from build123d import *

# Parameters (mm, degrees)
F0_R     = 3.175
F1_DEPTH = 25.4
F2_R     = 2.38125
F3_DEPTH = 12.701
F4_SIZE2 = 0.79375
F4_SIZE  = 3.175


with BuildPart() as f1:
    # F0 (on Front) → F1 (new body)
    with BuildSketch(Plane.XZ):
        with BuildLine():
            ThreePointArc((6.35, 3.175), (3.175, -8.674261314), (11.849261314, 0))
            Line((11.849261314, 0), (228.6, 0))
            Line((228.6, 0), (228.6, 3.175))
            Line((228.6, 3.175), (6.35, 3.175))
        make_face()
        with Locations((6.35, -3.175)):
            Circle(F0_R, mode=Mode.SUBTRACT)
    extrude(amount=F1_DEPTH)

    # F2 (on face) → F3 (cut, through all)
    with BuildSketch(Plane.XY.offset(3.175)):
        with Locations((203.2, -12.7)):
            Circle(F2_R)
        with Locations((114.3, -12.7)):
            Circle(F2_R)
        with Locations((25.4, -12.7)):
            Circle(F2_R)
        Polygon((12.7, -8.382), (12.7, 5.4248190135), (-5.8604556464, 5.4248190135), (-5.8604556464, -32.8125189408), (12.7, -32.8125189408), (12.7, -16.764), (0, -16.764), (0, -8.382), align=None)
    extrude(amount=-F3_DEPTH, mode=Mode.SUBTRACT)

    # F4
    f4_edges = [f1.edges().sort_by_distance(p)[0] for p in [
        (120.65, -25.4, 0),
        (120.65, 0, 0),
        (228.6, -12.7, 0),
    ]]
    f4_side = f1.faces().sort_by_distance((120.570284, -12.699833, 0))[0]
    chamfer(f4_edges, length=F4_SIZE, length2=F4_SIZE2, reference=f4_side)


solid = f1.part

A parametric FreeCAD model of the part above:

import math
import FreeCAD as App
import Part
import Sketcher
from FreeCAD import Vector
Q = App.Units.Quantity


def edges_at(feature, points):
    """Names of the edges that pass closest to the given points."""
    edges = feature.Shape.Edges
    near = lambda p: min(range(len(edges)), key=lambda i: edges[i].distToShape(Part.Vertex(*p))[0])
    return sorted({f"Edge{near(p) + 1}" for p in points})


def add_polygon(sketch, points):
    """Adds a closed chain of lines whose ends are joined by coincident constraints."""
    first, n = sketch.GeometryCount, len(points)
    for a, b in zip(points, points[1:] + points[:1]):
        sketch.addGeometry(Part.LineSegment(App.Vector(*a, 0), App.Vector(*b, 0)), False)
    for i in range(n):
        sketch.addConstraint(Sketcher.Constraint("Coincident", first + i, 2, first + (i + 1) % n, 1))

doc = App.newDocument("Part")
params = doc.addObject("Spreadsheet::Sheet", "Params")
for row, (alias, value) in enumerate([
    ("sketch1_diameter", "0.25 in"),
    ("sketch1_radius", "0.25 in"),
    ("sketch1_width", "8.75 in"),
    ("sketch1_height", "0.125 in"),
    ("pad1_length", "1 in"),
    ("sketch2_diameter", "0.1875 in"),
    ("sketch2_width", "0.5 in"),
    ("sketch2_height", "0.33 in"),
    ("chamfer_size", "0.125 in"),
    ("chamfer_size2", "0.03125 in"),
], start=1):
    params.set(f"A{row}", alias)
    params.set(f"B{row}", "=" + value)
    params.setAlias(f"B{row}", alias)

body = doc.addObject("PartDesign::Body", "Body")

sketch1 = body.newObject("Sketcher::SketchObject", "Sketch")
sketch1.AttachmentSupport = (doc.getObject("XZ_Plane"), [""])
sketch1.MapMode = "FlatFace"
sketch1.addGeometry([
    Part.ArcOfCircle(Part.Circle(Vector(6.3, -3.2, 0), Vector(0, 0, 1), 6.3), math.radians(90), math.radians(390)),
    Part.LineSegment(Vector(11.8, 0, 0), Vector(228.6, 0, 0)),
    Part.LineSegment(Vector(228.6, 0, 0), Vector(228.6, 3.2, 0)),
    Part.LineSegment(Vector(228.6, 3.2, 0), Vector(6.3, 3.2, 0)),
    Part.Circle(Vector(6.3, -3.2, 0), Vector(0, 0, 1), 3.2),
], False)
sketch1.addConstraint([
    Sketcher.Constraint("Coincident", 0, 2, 1, 1),
    Sketcher.Constraint("Coincident", 1, 2, 2, 1),
    Sketcher.Constraint("Coincident", 2, 2, 3, 1),
    Sketcher.Constraint("Tangent", 3, 2, 0, 1),
    Sketcher.Constraint("Horizontal", 1),
    Sketcher.Constraint("Vertical", 2),
    Sketcher.Constraint("Horizontal", 3),
    Sketcher.Constraint("Coincident", 4, 3, 0, 3),
    Sketcher.Constraint("PointOnObject", 0, 2, -1),
    Sketcher.Constraint("Diameter", 4, Q("0.25 in")),
    Sketcher.Constraint("Radius", 0, Q("0.25 in")),
    Sketcher.Constraint("DistanceX", -1, 1, 1, 2, Q("9 in")),
    Sketcher.Constraint("DistanceX", 3, 2, 3, 1, Q("8.75 in")),
    Sketcher.Constraint("DistanceY", 2, 1, 2, 2, Q("0.125 in")),
])
sketch1.setExpression("Constraints[9]", "Params.sketch1_diameter")
sketch1.setExpression("Constraints[10]", "Params.sketch1_radius")
sketch1.setExpression("Constraints[12]", "Params.sketch1_width")
sketch1.setExpression("Constraints[13]", "Params.sketch1_height")
pad1 = body.newObject("PartDesign::Pad", "Pad")
pad1.Profile = sketch1
pad1.setExpression("Length", "Params.pad1_length")

sketch2 = body.newObject("Sketcher::SketchObject", "Sketch001")
sketch2.AttachmentSupport = (doc.getObject("XY_Plane"), [""])
sketch2.MapMode = "FlatFace"
sketch2.AttachmentOffset = App.Placement(Vector(0, 0, 0.125 * 25.4), App.Rotation())
sketch2.addGeometry(Part.Circle(Vector(203.2, -12.7, 0), Vector(0, 0, 1), 2.4), False)
sketch2.addGeometry(Part.Circle(Vector(114.3, -12.7, 0), Vector(0, 0, 1), 2.4), False)
sketch2.addGeometry(Part.Circle(Vector(25.4, -12.7, 0), Vector(0, 0, 1), 2.4), False)
add_polygon(sketch2, [(12.7, -8.4), (12.7, 5.4), (-5.9, 5.4), (-5.9, -32.8), (12.7, -32.8), (12.7, -16.8), (0, -16.8), (0, -8.4)])
sketch2.addConstraint([
    Sketcher.Constraint("Vertical", 3),
    Sketcher.Constraint("Horizontal", 4),
    Sketcher.Constraint("Vertical", 5),
    Sketcher.Constraint("Horizontal", 6),
    Sketcher.Constraint("Vertical", 7),
    Sketcher.Constraint("Horizontal", 8),
    Sketcher.Constraint("Vertical", 9),
    Sketcher.Constraint("Horizontal", 10),
    Sketcher.Constraint("Equal", 0, 1),
    Sketcher.Constraint("Equal", 1, 2),
    Sketcher.Constraint("PointOnObject", 8, 2, -2),
    Sketcher.Constraint("Horizontal", 0, 3, 1, 3),
    Sketcher.Constraint("Horizontal", 1, 3, 2, 3),
    Sketcher.Constraint("Vertical", 3, 2, 6, 2),
    Sketcher.Constraint("Diameter", 0, Q("0.1875 in")),
    Sketcher.Constraint("DistanceX", 8, 2, 8, 1, Q("0.5 in")),
    Sketcher.Constraint("DistanceX", -1, 1, 0, 3, Q("8 in")),
    Sketcher.Constraint("DistanceX", -1, 1, 2, 3, Q("1 in")),
    Sketcher.Constraint("DistanceX", 3, 2, 1, 3, Q("4 in")),
    Sketcher.Constraint("DistanceY", 9, 1, 9, 2, Q("0.33 in")),
    Sketcher.Constraint("DistanceY", 0, 3, -1, 1, Q("0.5 in")),
    Sketcher.Constraint("DistanceY", 7, 2, -1, 1, Q("0.66 in")),
    Sketcher.Constraint("DistanceY", 3, 1, 3, 2, Q("13.806819 mm")),
    Sketcher.Constraint("DistanceY", 7, 1, 7, 2, Q("16.048519 mm")),
    Sketcher.Constraint("DistanceX", 4, 2, 4, 1, Q("18.560456 mm")),
])
sketch2.setExpression("Constraints[22]", "Params.sketch2_diameter")
sketch2.setExpression("Constraints[23]", "Params.sketch2_width")
sketch2.setExpression("Constraints[27]", "Params.sketch2_height")
pocket1 = body.newObject("PartDesign::Pocket", "Pocket")
pocket1.Profile = sketch2
pocket1.Type = "ThroughAll"
doc.recompute()

chamfer = body.newObject("PartDesign::Chamfer", "Chamfer")
chamfer.Base = (pocket1, edges_at(pocket1, [(120.65, -25.4, 0), (120.65, 0, 0), (228.6, -12.7, 0)]))
chamfer.ChamferType = "Two distances"
chamfer.setExpression("Size", "Params.chamfer_size")
chamfer.setExpression("Size2", "Params.chamfer_size2")

doc.recompute()
